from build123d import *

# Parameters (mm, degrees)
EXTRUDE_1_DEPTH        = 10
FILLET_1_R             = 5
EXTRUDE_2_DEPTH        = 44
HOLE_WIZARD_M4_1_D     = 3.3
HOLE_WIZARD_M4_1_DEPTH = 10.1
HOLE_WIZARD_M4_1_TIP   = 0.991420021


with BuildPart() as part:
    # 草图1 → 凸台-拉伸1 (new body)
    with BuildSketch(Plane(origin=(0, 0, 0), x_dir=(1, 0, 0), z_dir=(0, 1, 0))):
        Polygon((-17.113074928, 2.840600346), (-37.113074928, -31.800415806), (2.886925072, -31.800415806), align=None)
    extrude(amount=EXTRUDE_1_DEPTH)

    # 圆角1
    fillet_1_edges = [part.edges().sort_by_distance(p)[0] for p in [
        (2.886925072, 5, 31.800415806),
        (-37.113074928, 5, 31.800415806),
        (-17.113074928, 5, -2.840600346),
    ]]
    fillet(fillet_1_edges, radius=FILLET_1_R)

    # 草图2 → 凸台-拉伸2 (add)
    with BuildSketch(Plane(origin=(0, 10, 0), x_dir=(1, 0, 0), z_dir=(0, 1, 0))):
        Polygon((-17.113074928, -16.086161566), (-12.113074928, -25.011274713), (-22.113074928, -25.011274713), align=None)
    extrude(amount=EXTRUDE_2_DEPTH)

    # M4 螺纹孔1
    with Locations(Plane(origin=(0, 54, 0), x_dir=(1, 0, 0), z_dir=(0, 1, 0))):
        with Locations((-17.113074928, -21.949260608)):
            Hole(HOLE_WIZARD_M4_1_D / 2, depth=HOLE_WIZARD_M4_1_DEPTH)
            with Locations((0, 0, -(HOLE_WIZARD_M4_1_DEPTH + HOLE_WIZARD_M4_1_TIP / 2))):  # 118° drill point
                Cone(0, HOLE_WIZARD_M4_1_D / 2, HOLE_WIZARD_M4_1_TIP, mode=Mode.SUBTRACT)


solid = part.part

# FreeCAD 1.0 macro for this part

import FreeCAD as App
import Part
import Sketcher

V = App.Vector
Q = App.Units.Quantity


def edges_at(feature, points):
    """Names of the edges that pass closest to the given points."""
    edges = feature.Shape.Edges
    near = lambda p: min(range(len(edges)), key=lambda i: edges[i].distToShape(Part.Vertex(*p))[0])
    return sorted({f"Edge{near(p) + 1}" for p in points})

doc = App.newDocument("Part")
body = doc.addObject("PartDesign::Body", "Body")

# Sketch on XZ plane
sketch1 = body.newObject("Sketcher::SketchObject", "Sketch")
sketch1.AttachmentSupport = (doc.getObject("XZ_Plane"), [""])
sketch1.MapMode = "FlatFace"
sketch1.addGeometry([
    Part.LineSegment(V(-17, -3, 0), V(-37, 32, 0)),
    Part.LineSegment(V(-37, 32, 0), V(3, 32, 0)),
    Part.LineSegment(V(3, 32, 0), V(-17, -3, 0)),
], False)
sketch1.addConstraint([
    Sketcher.Constraint("Coincident", 0, 2, 1, 1),
    Sketcher.Constraint("Coincident", 1, 2, 2, 1),
    Sketcher.Constraint("Coincident", 2, 2, 0, 1),
    Sketcher.Constraint("Horizontal", 1),
    Sketcher.Constraint("Equal", 0, 2),
    Sketcher.Constraint("DistanceX", 1, 1, 1, 2, 40.0),
    Sketcher.Constraint("Angle", 0, Q("120 deg")),
    Sketcher.Constraint("DistanceY", 2, 2, -1, 1, 2.8406),
    Sketcher.Constraint("DistanceX", 0, 2, -1, 1, 37.113075),
])
pad1 = body.newObject("PartDesign::Pad", "Pad")
pad1.Profile = sketch1
pad1.Length = 10
pad1.Reversed = True
doc.recompute()

fillet = body.newObject("PartDesign::Fillet", "Fillet")
fillet.Base = (pad1, edges_at(pad1, [(2.887, 5, 31.8), (-37.113, 5, 31.8), (-17.113, 5, -2.841)]))
fillet.Radius = 5

# Sketch on XZ plane
sketch2 = body.newObject("Sketcher::SketchObject", "Sketch001")
sketch2.AttachmentSupport = (doc.getObject("XZ_Plane"), [""])
sketch2.MapMode = "FlatFace"
sketch2.AttachmentOffset = App.Placement(V(0, 0, -10), App.Rotation())
sketch2.addGeometry([
    Part.LineSegment(V(-12, 25, 0), V(-17, 16, 0)),
    Part.LineSegment(V(-17, 16, 0), V(-22, 25, 0)),
    Part.LineSegment(V(-22, 25, 0), V(-12, 25, 0)),
], False)
sketch2.addConstraint([
    Sketcher.Constraint("Coincident", 0, 2, 1, 1),
    Sketcher.Constraint("Coincident", 1, 2, 2, 1),
    Sketcher.Constraint("Coincident", 2, 2, 0, 1),
    Sketcher.Constraint("Horizontal", 2),
    Sketcher.Constraint("Equal", 0, 1),
    Sketcher.Constraint("DistanceX", 2, 1, 2, 2, 10.0),
    Sketcher.Constraint("Distance", 0, 10.230232),
    Sketcher.Constraint("DistanceY", -1, 1, 0, 2, 16.086162),
    Sketcher.Constraint("DistanceX", 0, 2, -1, 1, 17.113075),
])
pad2 = body.newObject("PartDesign::Pad", "Pad001")
pad2.Profile = sketch2
pad2.Length = 44
pad2.Reversed = True

# Sketch on XZ plane
sketch3 = body.newObject("Sketcher::SketchObject", "Sketch002")
sketch3.AttachmentSupport = (doc.getObject("XZ_Plane"), [""])
sketch3.MapMode = "FlatFace"
sketch3.AttachmentOffset = App.Placement(V(0, 0, -54), App.Rotation())
sketch3.addGeometry(Part.Circle(V(-17.1, 21.9, 0), V(0, 0, 1), 1.6), False)
sketch3.addConstraint([
    Sketcher.Constraint("Diameter", 0, 3.3),
    Sketcher.Constraint("DistanceY", -1, 1, 0, 3, 21.949261),
    Sketcher.Constraint("DistanceX", 0, 3, -1, 1, 17.113075),
])
doc.recompute()
hole = body.newObject("PartDesign::Hole", "Hole")
hole.Profile = sketch3
hole.ThreadType = "None"
hole.Diameter = 3.3
hole.DepthType = "Dimension"
hole.Depth = 10.1
hole.DrillPoint = "Angled"
hole.DrillPointAngle = 118
hole.Reversed = True

doc.recompute()
